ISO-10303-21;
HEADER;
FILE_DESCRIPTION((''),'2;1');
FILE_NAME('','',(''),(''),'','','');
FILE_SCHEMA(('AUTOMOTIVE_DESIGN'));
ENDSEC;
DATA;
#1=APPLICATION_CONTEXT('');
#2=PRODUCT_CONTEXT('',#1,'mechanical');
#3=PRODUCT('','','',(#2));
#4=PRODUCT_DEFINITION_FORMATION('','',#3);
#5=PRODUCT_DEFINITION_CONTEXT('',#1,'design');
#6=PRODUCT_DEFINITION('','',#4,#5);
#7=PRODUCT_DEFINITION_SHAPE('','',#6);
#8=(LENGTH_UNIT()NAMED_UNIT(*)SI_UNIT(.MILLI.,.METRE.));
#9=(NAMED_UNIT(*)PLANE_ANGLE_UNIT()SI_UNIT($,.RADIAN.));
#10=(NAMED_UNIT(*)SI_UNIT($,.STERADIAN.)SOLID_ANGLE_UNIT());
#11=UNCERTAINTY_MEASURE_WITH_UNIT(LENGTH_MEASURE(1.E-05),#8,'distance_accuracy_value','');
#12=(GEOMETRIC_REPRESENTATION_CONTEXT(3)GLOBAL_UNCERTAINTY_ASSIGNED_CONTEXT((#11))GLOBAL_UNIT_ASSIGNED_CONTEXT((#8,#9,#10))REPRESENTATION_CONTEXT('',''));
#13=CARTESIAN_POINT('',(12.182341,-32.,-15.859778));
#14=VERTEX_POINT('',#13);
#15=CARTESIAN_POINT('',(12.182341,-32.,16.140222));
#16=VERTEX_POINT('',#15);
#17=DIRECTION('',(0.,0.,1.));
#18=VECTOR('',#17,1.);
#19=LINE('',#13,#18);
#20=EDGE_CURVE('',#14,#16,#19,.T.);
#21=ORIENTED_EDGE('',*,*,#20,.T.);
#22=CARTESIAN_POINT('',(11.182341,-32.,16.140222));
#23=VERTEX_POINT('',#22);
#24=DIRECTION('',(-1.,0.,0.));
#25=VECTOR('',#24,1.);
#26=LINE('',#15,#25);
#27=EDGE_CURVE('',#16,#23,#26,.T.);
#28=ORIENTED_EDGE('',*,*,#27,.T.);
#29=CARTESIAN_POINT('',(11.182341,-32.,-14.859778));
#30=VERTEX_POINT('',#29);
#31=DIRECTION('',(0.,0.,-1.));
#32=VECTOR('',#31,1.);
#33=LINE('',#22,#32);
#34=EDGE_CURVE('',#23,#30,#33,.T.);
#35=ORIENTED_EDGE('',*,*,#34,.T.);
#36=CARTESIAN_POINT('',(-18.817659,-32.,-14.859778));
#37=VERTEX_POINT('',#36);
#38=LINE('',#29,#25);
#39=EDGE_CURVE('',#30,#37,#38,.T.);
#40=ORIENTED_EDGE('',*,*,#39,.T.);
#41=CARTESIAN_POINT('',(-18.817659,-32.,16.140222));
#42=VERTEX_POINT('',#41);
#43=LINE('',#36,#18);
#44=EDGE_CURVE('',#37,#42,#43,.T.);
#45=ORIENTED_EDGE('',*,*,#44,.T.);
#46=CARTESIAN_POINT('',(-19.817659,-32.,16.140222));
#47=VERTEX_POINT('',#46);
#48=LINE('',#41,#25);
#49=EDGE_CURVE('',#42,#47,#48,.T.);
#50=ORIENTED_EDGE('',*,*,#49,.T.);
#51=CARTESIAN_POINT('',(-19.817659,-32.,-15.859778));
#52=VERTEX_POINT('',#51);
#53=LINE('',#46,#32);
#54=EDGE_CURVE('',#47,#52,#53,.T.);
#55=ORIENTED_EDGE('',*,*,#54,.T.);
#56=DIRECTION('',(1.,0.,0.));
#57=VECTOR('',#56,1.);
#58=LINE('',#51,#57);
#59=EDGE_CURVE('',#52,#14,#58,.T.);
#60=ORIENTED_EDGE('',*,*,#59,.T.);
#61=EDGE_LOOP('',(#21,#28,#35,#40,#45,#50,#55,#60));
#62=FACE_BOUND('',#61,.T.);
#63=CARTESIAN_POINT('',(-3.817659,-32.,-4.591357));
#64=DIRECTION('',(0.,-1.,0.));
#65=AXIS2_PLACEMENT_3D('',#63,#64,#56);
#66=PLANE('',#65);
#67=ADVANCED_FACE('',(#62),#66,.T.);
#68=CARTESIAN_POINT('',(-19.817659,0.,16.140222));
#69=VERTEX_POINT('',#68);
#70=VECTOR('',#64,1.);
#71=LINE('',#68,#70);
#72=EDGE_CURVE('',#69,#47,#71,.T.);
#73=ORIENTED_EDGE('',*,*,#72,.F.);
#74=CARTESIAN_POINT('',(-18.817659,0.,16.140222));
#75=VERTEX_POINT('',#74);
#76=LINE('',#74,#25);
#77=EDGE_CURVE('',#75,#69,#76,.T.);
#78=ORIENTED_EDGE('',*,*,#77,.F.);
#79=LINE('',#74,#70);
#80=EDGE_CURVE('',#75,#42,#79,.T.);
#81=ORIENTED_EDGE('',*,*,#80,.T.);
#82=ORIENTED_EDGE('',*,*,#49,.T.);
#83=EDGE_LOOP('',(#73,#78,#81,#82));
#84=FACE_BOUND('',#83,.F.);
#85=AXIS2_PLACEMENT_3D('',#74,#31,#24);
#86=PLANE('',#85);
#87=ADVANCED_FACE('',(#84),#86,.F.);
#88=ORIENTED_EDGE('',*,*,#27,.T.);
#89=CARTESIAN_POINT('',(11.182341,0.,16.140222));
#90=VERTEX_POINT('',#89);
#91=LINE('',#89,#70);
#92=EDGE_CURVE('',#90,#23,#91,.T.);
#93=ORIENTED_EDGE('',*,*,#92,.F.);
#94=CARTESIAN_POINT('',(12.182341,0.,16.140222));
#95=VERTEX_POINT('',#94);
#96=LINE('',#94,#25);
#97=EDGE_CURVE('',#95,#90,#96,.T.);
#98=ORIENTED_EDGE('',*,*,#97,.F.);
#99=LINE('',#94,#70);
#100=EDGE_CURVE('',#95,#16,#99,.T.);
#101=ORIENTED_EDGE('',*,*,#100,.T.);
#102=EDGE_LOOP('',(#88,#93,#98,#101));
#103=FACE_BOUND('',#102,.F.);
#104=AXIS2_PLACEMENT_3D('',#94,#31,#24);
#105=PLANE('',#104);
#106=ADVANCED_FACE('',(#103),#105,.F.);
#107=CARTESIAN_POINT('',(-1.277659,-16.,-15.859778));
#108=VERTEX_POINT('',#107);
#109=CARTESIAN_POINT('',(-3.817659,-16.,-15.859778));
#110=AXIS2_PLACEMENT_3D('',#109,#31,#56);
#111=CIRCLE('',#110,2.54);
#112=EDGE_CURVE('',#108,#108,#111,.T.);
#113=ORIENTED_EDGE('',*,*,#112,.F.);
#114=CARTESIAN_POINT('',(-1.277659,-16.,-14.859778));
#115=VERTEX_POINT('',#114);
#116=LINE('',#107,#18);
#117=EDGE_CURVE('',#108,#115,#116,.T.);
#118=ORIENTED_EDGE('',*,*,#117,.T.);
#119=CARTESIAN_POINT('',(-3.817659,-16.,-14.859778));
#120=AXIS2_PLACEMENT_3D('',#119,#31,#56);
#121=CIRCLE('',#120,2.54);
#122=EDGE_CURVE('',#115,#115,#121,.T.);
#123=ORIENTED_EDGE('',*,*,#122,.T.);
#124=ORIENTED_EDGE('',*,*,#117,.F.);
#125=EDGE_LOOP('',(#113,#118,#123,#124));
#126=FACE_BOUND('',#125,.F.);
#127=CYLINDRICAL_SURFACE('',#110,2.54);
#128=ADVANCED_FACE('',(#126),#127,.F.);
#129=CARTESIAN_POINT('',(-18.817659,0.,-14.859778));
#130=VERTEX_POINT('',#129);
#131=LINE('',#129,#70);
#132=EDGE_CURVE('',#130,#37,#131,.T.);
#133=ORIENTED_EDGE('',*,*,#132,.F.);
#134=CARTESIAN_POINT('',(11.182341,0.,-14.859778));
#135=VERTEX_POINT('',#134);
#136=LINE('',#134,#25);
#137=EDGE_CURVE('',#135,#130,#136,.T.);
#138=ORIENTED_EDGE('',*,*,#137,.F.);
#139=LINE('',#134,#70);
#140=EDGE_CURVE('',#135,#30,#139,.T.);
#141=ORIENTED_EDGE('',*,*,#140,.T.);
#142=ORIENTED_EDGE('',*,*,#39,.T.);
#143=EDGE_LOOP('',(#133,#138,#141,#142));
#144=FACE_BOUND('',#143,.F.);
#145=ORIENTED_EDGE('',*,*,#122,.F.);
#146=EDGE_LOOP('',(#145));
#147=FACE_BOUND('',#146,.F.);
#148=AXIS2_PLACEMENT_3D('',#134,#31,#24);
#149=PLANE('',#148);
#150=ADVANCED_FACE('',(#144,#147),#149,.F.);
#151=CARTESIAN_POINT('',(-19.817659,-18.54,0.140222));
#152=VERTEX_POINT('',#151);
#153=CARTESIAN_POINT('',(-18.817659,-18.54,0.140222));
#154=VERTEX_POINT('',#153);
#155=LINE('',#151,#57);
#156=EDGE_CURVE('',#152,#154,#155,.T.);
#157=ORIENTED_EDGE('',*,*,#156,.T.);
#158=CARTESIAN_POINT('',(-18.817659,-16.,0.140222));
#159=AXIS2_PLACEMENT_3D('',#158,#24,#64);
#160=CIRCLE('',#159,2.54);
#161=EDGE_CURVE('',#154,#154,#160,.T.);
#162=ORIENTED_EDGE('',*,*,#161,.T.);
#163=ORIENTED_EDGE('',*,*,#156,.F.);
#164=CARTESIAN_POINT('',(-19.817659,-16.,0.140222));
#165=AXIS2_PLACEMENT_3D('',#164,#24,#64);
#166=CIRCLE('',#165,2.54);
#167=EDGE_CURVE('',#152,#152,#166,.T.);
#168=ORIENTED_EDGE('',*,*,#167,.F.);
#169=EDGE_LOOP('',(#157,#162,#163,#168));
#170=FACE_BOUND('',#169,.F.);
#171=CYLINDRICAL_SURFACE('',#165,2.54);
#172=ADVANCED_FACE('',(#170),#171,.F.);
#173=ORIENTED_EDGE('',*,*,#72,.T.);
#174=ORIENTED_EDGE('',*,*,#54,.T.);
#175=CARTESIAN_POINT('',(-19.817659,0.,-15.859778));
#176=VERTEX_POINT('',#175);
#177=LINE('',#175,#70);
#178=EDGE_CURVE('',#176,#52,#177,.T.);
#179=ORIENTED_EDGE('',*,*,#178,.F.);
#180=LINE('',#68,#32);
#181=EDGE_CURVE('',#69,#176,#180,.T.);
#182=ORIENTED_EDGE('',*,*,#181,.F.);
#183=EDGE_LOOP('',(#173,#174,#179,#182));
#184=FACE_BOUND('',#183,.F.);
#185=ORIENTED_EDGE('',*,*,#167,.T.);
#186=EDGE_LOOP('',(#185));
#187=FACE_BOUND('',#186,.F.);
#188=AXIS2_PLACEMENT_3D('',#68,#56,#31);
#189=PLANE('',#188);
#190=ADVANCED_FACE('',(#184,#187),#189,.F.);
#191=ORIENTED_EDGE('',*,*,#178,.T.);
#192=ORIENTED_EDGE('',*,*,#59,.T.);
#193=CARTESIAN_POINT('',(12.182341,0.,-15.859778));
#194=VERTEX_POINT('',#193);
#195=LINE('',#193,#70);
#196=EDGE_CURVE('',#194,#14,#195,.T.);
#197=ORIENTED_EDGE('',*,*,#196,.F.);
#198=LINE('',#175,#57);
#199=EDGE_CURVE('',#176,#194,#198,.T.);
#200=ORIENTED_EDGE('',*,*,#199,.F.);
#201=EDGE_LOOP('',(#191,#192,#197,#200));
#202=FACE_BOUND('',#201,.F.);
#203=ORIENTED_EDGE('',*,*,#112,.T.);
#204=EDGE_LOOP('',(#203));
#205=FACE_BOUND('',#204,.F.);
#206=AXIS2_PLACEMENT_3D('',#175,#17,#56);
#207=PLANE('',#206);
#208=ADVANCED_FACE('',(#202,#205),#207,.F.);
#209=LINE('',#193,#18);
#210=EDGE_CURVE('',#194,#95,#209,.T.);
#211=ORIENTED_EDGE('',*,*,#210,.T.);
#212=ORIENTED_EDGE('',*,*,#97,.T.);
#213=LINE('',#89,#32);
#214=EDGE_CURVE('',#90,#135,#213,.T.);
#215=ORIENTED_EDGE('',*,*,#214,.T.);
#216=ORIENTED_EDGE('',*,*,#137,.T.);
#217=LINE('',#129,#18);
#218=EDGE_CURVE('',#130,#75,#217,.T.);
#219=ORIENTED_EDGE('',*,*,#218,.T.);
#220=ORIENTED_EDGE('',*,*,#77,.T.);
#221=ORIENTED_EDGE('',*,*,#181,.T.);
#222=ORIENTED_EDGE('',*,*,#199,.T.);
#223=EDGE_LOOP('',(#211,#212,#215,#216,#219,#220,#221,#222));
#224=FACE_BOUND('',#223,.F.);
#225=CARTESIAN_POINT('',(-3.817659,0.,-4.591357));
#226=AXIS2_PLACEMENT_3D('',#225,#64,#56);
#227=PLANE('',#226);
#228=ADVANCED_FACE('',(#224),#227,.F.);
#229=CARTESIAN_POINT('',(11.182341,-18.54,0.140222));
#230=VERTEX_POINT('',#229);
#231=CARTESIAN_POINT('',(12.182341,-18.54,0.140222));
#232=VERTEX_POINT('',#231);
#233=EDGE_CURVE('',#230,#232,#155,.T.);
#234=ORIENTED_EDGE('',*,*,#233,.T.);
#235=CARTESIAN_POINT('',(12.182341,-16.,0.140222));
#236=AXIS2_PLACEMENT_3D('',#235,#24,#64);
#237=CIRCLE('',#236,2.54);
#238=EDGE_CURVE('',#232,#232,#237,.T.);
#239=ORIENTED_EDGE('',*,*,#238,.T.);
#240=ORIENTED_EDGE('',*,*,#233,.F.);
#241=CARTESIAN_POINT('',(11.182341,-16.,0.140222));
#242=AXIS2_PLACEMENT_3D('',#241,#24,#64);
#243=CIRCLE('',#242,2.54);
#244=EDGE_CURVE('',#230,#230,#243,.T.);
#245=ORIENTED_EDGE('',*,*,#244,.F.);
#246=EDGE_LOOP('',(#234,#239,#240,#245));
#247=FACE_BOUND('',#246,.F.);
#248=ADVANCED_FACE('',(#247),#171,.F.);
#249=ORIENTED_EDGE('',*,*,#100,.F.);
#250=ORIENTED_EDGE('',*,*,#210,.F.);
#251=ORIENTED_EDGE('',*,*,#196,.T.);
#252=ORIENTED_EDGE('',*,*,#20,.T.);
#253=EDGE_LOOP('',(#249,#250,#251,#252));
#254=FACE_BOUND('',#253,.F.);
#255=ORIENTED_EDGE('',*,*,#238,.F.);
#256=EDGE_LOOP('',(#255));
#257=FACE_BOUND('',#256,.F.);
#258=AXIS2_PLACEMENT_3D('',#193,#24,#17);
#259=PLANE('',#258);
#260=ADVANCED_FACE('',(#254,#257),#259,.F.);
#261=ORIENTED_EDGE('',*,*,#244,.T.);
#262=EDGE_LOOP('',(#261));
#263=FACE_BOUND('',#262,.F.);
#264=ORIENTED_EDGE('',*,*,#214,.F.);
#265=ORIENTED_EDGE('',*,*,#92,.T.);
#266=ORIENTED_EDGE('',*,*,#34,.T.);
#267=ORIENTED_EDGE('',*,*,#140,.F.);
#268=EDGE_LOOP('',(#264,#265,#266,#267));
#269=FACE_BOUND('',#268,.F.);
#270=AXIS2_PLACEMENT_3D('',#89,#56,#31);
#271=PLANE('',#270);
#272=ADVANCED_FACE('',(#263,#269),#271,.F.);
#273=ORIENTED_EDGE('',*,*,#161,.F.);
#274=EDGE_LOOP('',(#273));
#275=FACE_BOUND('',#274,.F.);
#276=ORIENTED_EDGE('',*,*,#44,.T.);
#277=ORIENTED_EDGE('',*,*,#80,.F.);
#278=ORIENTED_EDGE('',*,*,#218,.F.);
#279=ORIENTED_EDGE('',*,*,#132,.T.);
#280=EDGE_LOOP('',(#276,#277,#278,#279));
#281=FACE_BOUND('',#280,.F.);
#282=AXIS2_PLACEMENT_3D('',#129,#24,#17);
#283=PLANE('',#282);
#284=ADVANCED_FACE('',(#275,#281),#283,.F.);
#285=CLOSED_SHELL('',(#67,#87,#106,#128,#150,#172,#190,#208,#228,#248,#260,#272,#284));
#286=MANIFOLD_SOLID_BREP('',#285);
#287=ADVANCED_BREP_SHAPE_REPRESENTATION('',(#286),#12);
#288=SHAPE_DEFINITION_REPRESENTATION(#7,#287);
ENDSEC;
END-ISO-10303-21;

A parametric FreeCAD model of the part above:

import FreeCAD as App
import Part
import Sketcher

doc = App.newDocument("Part")
body = doc.addObject("PartDesign::Body", "Body")

# Sketch on XZ plane
sketch1 = doc.addObject("Sketcher::SketchObject", "Sketch")
body.addObject(sketch1)
sketch1.AttachmentSupport = (doc.XZ_Plane, [""])
sketch1.MapMode = "FlatFace"
sketch1.addGeometry([
    Part.LineSegment(App.Vector(-18.817659, 16.140222, 0), App.Vector(-19.817659, 16.140222, 0)),  # 0
    Part.LineSegment(App.Vector(-19.817659, 16.140222, 0), App.Vector(-19.817659, -15.859778, 0)),  # 1
    Part.LineSegment(App.Vector(-19.817659, -15.859778, 0), App.Vector(12.182341, -15.859778, 0)),  # 2
    Part.LineSegment(App.Vector(12.182341, -15.859778, 0), App.Vector(12.182341, 16.140222, 0)),  # 3
    Part.LineSegment(App.Vector(12.182341, 16.140222, 0), App.Vector(11.182341, 16.140222, 0)),  # 4
    Part.LineSegment(App.Vector(11.182341, 16.140222, 0), App.Vector(11.182341, -14.859778, 0)),  # 5
    Part.LineSegment(App.Vector(11.182341, -14.859778, 0), App.Vector(-18.817659, -14.859778, 0)),  # 6
    Part.LineSegment(App.Vector(-18.817659, -14.859778, 0), App.Vector(-18.817659, 16.140222, 0)),  # 7
], False)
sketch1.addConstraint([
    Sketcher.Constraint("Coincident", 0, 2, 1, 1),
    Sketcher.Constraint("Coincident", 1, 2, 2, 1),
    Sketcher.Constraint("Coincident", 2, 2, 3, 1),
    Sketcher.Constraint("Coincident", 3, 2, 4, 1),
    Sketcher.Constraint("Coincident", 4, 2, 5, 1),
    Sketcher.Constraint("Coincident", 5, 2, 6, 1),
    Sketcher.Constraint("Coincident", 6, 2, 7, 1),
    Sketcher.Constraint("Coincident", 7, 2, 0, 1),
    Sketcher.Constraint("Horizontal", 0),
    Sketcher.Constraint("Vertical", 1),
    Sketcher.Constraint("Horizontal", 2),
    Sketcher.Constraint("Vertical", 3),
    Sketcher.Constraint("Horizontal", 4),
    Sketcher.Constraint("Vertical", 5),
    Sketcher.Constraint("Horizontal", 6),
    Sketcher.Constraint("Vertical", 7),
    Sketcher.Constraint("Horizontal", 0, 2, 3, 2),
    Sketcher.Constraint("Equal", 0, 4),
    Sketcher.Constraint("Equal", 2, 1),
    Sketcher.Constraint("DistanceX", 0, 2, 0, 1, 1.0),
    Sketcher.Constraint("DistanceX", 2, 1, 2, 2, 32.0),
    Sketcher.Constraint("DistanceY", 5, 2, 5, 1, 31.0),
    Sketcher.Constraint("DistanceX", 0, 2, -1, 1, 19.817659),
    Sketcher.Constraint("DistanceY", -1, 1, 0, 2, 16.140222),
])
pad1 = doc.addObject("PartDesign::Pad", "Pad")
body.addObject(pad1)
pad1.Profile = sketch1
pad1.Length = 32

# Sketch on YZ plane
sketch2 = doc.addObject("Sketcher::SketchObject", "Sketch001")
body.addObject(sketch2)
sketch2.AttachmentSupport = (doc.YZ_Plane, [""])
sketch2.MapMode = "FlatFace"
sketch2.AttachmentOffset = App.Placement(App.Vector(0, 0, -19.817659), App.Rotation())
sketch2.addGeometry(Part.Circle(App.Vector(-16, 0.140222, 0), App.Vector(0, 0, 1), 2.54), False)
sketch2.addConstraint([
    Sketcher.Constraint("Diameter", 0, 5.08),
    Sketcher.Constraint("DistanceX", 0, 3, -1, 1, 16.0),
    Sketcher.Constraint("DistanceY", -1, 1, 0, 3, 0.140222),
])
pocket1 = doc.addObject("PartDesign::Pocket", "Pocket")
body.addObject(pocket1)
pocket1.Profile = sketch2
pocket1.Length = 76.2
pocket1.Reversed = True

# Sketch on XY plane
sketch3 = doc.addObject("Sketcher::SketchObject", "Sketch002")
body.addObject(sketch3)
sketch3.AttachmentSupport = (doc.XY_Plane, [""])
sketch3.MapMode = "FlatFace"
sketch3.AttachmentOffset = App.Placement(App.Vector(0, 0, -15.859778), App.Rotation())
sketch3.addGeometry(Part.Circle(App.Vector(-3.817659, -16, 0), App.Vector(0, 0, 1), 2.54), False)
sketch3.addConstraint([
    Sketcher.Constraint("Diameter", 0, 5.08),
    Sketcher.Constraint("DistanceY", 0, 3, -1, 1, 16.0),
    Sketcher.Constraint("DistanceX", 0, 3, -1, 1, 3.817659),
])
pocket2 = doc.addObject("PartDesign::Pocket", "Pocket001")
body.addObject(pocket2)
pocket2.Profile = sketch3
pocket2.Length = 25.4
pocket2.Reversed = True

doc.recompute()
